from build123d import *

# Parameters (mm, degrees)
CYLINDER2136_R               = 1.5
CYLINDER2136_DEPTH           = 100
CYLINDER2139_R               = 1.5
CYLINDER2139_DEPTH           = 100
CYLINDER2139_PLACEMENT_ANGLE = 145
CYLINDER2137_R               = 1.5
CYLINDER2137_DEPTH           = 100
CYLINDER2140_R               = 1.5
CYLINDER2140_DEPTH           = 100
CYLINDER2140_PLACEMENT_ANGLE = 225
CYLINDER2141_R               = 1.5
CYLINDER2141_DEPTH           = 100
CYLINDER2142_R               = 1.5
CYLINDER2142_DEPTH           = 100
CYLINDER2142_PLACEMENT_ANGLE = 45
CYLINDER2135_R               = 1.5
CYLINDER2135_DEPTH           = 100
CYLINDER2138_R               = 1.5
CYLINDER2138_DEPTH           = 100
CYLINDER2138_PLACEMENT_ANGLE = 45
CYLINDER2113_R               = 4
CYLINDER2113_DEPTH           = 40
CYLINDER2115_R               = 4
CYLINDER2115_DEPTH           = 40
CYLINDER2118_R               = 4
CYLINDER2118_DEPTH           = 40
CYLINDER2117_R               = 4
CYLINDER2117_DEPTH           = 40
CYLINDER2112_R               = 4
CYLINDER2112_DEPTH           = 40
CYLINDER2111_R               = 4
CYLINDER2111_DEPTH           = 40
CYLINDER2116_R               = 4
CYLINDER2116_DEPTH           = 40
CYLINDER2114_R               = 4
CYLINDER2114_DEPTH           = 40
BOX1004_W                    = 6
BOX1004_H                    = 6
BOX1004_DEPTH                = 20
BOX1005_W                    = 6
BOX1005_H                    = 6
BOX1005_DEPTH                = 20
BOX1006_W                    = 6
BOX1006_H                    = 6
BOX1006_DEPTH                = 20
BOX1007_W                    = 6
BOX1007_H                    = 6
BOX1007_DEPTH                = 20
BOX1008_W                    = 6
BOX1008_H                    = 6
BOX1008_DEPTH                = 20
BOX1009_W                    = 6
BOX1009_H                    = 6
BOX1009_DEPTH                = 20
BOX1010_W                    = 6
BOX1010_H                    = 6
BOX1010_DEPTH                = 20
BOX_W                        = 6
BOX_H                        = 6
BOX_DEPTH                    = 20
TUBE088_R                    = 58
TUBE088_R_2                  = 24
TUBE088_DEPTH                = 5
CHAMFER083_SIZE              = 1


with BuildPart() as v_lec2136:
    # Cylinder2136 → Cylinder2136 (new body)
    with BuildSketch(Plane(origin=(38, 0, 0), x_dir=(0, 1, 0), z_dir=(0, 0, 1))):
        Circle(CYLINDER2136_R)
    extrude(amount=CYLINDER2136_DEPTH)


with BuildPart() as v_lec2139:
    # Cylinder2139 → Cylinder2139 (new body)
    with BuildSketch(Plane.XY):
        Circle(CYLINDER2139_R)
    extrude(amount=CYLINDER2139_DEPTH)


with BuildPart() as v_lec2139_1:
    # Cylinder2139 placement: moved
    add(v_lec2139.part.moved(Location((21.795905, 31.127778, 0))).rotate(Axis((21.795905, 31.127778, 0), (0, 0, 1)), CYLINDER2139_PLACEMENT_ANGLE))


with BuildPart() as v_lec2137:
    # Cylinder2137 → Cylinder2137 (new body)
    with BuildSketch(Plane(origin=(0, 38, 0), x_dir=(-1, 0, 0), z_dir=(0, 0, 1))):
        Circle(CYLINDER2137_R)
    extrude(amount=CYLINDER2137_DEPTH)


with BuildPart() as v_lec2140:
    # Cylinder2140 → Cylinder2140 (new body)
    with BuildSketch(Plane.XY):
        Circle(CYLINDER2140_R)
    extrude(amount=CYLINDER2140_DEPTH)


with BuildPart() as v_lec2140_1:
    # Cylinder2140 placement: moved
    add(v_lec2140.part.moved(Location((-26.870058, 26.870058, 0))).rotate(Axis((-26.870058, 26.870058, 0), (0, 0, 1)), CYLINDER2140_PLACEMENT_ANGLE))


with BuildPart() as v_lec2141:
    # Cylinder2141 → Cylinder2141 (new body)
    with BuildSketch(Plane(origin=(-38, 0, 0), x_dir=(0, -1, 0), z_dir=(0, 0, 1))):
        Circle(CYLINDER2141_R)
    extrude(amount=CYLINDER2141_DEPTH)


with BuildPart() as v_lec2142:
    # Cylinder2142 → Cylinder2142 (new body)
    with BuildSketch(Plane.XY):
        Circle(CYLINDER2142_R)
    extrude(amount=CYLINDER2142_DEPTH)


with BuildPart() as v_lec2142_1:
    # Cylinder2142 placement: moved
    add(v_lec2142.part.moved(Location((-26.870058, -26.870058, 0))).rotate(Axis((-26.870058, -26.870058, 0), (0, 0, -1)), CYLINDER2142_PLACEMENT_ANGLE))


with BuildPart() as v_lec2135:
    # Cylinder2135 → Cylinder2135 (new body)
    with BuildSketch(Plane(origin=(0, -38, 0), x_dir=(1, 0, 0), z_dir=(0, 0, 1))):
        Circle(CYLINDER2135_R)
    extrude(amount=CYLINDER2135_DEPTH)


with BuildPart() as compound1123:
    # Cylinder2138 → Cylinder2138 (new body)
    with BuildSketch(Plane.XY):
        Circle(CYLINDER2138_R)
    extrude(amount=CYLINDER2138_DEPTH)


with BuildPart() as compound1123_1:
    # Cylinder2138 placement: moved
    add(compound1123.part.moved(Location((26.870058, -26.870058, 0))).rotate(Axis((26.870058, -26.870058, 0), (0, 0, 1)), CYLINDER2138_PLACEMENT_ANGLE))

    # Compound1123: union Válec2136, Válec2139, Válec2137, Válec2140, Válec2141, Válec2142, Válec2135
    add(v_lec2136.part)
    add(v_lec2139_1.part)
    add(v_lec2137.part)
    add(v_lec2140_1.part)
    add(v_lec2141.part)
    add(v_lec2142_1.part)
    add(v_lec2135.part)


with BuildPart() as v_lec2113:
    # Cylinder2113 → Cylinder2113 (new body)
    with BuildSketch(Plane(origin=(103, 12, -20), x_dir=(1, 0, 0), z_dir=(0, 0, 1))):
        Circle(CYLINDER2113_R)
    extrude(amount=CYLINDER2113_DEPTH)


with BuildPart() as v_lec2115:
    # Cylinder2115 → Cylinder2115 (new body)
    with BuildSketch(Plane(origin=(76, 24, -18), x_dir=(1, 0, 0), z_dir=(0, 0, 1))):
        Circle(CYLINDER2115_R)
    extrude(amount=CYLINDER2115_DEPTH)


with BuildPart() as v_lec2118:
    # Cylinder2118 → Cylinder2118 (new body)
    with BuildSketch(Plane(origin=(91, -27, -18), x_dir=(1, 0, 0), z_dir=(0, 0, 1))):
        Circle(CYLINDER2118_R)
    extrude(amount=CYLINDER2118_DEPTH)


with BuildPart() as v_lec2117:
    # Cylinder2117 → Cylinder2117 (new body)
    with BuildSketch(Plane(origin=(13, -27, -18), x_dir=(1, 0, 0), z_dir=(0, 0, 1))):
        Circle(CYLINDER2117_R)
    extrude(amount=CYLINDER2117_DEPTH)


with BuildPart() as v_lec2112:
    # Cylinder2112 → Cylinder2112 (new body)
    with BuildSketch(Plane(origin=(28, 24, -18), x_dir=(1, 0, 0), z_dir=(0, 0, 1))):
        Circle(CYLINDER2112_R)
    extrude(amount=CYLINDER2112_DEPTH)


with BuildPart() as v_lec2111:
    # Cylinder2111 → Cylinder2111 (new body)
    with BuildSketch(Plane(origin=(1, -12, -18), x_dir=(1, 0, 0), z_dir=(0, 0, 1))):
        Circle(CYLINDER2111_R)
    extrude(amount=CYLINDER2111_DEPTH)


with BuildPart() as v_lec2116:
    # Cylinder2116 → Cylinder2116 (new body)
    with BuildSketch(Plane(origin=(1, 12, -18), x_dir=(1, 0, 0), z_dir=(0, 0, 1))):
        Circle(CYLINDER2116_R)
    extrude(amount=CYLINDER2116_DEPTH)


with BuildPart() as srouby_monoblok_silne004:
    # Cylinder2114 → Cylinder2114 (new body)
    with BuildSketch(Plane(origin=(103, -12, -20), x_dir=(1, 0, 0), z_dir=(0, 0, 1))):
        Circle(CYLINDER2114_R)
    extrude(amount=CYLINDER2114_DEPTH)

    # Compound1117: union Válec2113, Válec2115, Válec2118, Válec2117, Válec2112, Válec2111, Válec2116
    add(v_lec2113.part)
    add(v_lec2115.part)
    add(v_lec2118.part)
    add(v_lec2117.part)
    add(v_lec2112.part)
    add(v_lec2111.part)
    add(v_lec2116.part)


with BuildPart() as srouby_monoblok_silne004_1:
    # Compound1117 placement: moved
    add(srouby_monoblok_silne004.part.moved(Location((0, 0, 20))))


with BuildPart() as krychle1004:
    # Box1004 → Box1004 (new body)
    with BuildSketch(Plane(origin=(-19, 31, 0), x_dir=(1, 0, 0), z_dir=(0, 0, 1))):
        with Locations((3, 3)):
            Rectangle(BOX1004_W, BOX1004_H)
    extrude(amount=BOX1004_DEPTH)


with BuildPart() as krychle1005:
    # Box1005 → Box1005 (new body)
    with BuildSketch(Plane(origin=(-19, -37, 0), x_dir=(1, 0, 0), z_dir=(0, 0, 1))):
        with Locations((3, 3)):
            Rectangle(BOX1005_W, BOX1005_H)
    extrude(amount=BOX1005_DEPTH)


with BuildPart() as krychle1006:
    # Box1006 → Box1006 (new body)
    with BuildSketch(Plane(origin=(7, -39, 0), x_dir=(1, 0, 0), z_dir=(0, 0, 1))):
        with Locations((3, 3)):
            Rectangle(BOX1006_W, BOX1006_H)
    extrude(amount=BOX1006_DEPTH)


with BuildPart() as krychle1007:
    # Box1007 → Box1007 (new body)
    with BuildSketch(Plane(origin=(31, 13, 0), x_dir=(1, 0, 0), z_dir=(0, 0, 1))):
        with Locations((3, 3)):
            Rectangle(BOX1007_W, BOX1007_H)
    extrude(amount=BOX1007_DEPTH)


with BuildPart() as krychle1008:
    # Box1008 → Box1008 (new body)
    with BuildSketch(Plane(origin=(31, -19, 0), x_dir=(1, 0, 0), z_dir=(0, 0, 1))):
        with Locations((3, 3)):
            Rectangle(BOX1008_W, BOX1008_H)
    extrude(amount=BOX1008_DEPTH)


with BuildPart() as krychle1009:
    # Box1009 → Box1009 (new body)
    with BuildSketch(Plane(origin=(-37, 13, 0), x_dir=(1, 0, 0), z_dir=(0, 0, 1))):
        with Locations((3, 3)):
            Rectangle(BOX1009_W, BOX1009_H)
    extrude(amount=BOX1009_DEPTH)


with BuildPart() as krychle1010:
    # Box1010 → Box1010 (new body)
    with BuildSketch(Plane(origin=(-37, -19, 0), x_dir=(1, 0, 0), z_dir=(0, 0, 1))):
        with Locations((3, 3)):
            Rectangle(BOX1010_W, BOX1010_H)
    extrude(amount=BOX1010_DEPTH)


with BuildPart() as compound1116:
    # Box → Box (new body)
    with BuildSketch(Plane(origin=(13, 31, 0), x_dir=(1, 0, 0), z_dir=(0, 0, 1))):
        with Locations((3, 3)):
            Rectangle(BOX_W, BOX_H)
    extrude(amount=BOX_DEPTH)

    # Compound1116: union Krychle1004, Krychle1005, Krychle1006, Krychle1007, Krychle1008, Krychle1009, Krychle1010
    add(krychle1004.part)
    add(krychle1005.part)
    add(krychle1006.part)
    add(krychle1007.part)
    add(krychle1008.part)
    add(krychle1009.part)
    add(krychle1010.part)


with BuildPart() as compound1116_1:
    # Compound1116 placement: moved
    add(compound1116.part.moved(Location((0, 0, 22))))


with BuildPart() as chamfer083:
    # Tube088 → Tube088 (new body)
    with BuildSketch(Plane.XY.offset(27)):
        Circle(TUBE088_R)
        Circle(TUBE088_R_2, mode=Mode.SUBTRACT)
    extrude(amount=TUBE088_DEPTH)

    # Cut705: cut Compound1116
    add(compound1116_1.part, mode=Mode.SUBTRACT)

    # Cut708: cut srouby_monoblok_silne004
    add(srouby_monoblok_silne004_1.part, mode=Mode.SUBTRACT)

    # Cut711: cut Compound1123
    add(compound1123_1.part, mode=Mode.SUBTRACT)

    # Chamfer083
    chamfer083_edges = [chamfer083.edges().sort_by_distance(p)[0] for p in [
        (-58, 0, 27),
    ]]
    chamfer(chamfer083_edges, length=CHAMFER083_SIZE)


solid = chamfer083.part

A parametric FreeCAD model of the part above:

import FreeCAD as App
import Part
import Sketcher
Q = App.Units.Quantity


def edges_at(feature, points):
    """Names of the edges that pass closest to the given points."""
    edges = feature.Shape.Edges
    near = lambda p: min(range(len(edges)), key=lambda i: edges[i].distToShape(Part.Vertex(*p))[0])
    return sorted({f"Edge{near(p) + 1}" for p in points})

doc = App.newDocument("Part")
body = doc.addObject("PartDesign::Body", "Body")

# Sketch on XY plane
sketch1 = body.newObject("Sketcher::SketchObject", "Sketch")
sketch1.AttachmentSupport = (doc.getObject("XY_Plane"), [""])
sketch1.MapMode = "FlatFace"
sketch1.addGeometry(Part.Circle(App.Vector(38, 0, 0), App.Vector(0, 0, 1), 1.5), False)
sketch1.addConstraint([
    Sketcher.Constraint("PointOnObject", 0, 3, -1),
    Sketcher.Constraint("Diameter", 0, Q("3 mm")),
    Sketcher.Constraint("DistanceX", -1, 1, 0, 3, Q("38 mm")),
])
pad1 = body.newObject("PartDesign::Pad", "Pad")
pad1.Profile = sketch1
pad1.Length = 100
body2 = doc.addObject("PartDesign::Body", "Body001")

# Sketch on XY plane
sketch2 = body2.newObject("Sketcher::SketchObject", "Sketch001")
sketch2.AttachmentSupport = (doc.getObject("XY_Plane001"), [""])
sketch2.MapMode = "FlatFace"
sketch2.addGeometry(Part.Circle(App.Vector(0, 0, 0), App.Vector(0, 0, 1), 1.5), False)
sketch2.addConstraint([
    Sketcher.Constraint("Coincident", 0, 3, -1, 1),
    Sketcher.Constraint("Diameter", 0, Q("3 mm")),
])
pad2 = body2.newObject("PartDesign::Pad", "Pad001")
pad2.Profile = sketch2
pad2.Length = 100
body3 = doc.addObject("PartDesign::Body", "Body002")
doc.recompute()

body2.Placement = App.Placement(App.Vector(21.795905, 31.127778, 0), App.Rotation(App.Vector(0, 0, 1), 145))
boolean = body3.newObject("PartDesign::Boolean", "Boolean")
boolean.Type = "Fuse"
boolean.addObjects([body2])
body4 = doc.addObject("PartDesign::Body", "Body003")

# Sketch on XY plane
sketch3 = body4.newObject("Sketcher::SketchObject", "Sketch002")
sketch3.AttachmentSupport = (doc.getObject("XY_Plane003"), [""])
sketch3.MapMode = "FlatFace"
sketch3.addGeometry(Part.Circle(App.Vector(0, 38, 0), App.Vector(0, 0, 1), 1.5), False)
sketch3.addConstraint([
    Sketcher.Constraint("PointOnObject", 0, 3, -2),
    Sketcher.Constraint("Diameter", 0, Q("3 mm")),
    Sketcher.Constraint("DistanceY", -1, 1, 0, 3, Q("38 mm")),
])
pad3 = body4.newObject("PartDesign::Pad", "Pad002")
pad3.Profile = sketch3
pad3.Length = 100
body5 = doc.addObject("PartDesign::Body", "Body004")

# Sketch on XY plane
sketch4 = body5.newObject("Sketcher::SketchObject", "Sketch003")
sketch4.AttachmentSupport = (doc.getObject("XY_Plane004"), [""])
sketch4.MapMode = "FlatFace"
sketch4.addGeometry(Part.Circle(App.Vector(0, 0, 0), App.Vector(0, 0, 1), 1.5), False)
sketch4.addConstraint([
    Sketcher.Constraint("Coincident", 0, 3, -1, 1),
    Sketcher.Constraint("Diameter", 0, Q("3 mm")),
])
pad4 = body5.newObject("PartDesign::Pad", "Pad003")
pad4.Profile = sketch4
pad4.Length = 100
body6 = doc.addObject("PartDesign::Body", "Body005")
doc.recompute()

body5.Placement = App.Placement(App.Vector(-26.870058, 26.870058, 0), App.Rotation(App.Vector(0, 0, 1), 225))
boolean2 = body6.newObject("PartDesign::Boolean", "Boolean001")
boolean2.Type = "Fuse"
boolean2.addObjects([body5])
body7 = doc.addObject("PartDesign::Body", "Body006")

# Sketch on XY plane
sketch5 = body7.newObject("Sketcher::SketchObject", "Sketch004")
sketch5.AttachmentSupport = (doc.getObject("XY_Plane006"), [""])
sketch5.MapMode = "FlatFace"
sketch5.addGeometry(Part.Circle(App.Vector(-38, 0, 0), App.Vector(0, 0, 1), 1.5), False)
sketch5.addConstraint([
    Sketcher.Constraint("PointOnObject", 0, 3, -1),
    Sketcher.Constraint("Diameter", 0, Q("3 mm")),
    Sketcher.Constraint("DistanceX", 0, 3, -1, 1, Q("38 mm")),
])
pad5 = body7.newObject("PartDesign::Pad", "Pad004")
pad5.Profile = sketch5
pad5.Length = 100
body8 = doc.addObject("PartDesign::Body", "Body007")

# Sketch on XY plane
sketch6 = body8.newObject("Sketcher::SketchObject", "Sketch005")
sketch6.AttachmentSupport = (doc.getObject("XY_Plane007"), [""])
sketch6.MapMode = "FlatFace"
sketch6.addGeometry(Part.Circle(App.Vector(0, 0, 0), App.Vector(0, 0, 1), 1.5), False)
sketch6.addConstraint([
    Sketcher.Constraint("Coincident", 0, 3, -1, 1),
    Sketcher.Constraint("Diameter", 0, Q("3 mm")),
])
pad6 = body8.newObject("PartDesign::Pad", "Pad005")
pad6.Profile = sketch6
pad6.Length = 100
body9 = doc.addObject("PartDesign::Body", "Body008")
doc.recompute()

body8.Placement = App.Placement(App.Vector(-26.870058, -26.870058, 0), App.Rotation(App.Vector(0, 0, -1), 45))
boolean3 = body9.newObject("PartDesign::Boolean", "Boolean002")
boolean3.Type = "Fuse"
boolean3.addObjects([body8])
body10 = doc.addObject("PartDesign::Body", "Body009")

# Sketch on XY plane
sketch7 = body10.newObject("Sketcher::SketchObject", "Sketch006")
sketch7.AttachmentSupport = (doc.getObject("XY_Plane009"), [""])
sketch7.MapMode = "FlatFace"
sketch7.addGeometry(Part.Circle(App.Vector(0, -38, 0), App.Vector(0, 0, 1), 1.5), False)
sketch7.addConstraint([
    Sketcher.Constraint("PointOnObject", 0, 3, -2),
    Sketcher.Constraint("Diameter", 0, Q("3 mm")),
    Sketcher.Constraint("DistanceY", 0, 3, -1, 1, Q("38 mm")),
])
pad7 = body10.newObject("PartDesign::Pad", "Pad006")
pad7.Profile = sketch7
pad7.Length = 100
body11 = doc.addObject("PartDesign::Body", "Body010")

# Sketch on XY plane
sketch8 = body11.newObject("Sketcher::SketchObject", "Sketch007")
sketch8.AttachmentSupport = (doc.getObject("XY_Plane010"), [""])
sketch8.MapMode = "FlatFace"
sketch8.addGeometry(Part.Circle(App.Vector(0, 0, 0), App.Vector(0, 0, 1), 1.5), False)
sketch8.addConstraint([
    Sketcher.Constraint("Coincident", 0, 3, -1, 1),
    Sketcher.Constraint("Diameter", 0, Q("3 mm")),
])
pad8 = body11.newObject("PartDesign::Pad", "Pad007")
pad8.Profile = sketch8
pad8.Length = 100
body12 = doc.addObject("PartDesign::Body", "Body011")
body12.AllowCompound = True
doc.recompute()

body11.Placement = App.Placement(App.Vector(26.870058, -26.870058, 0), App.Rotation(App.Vector(0, 0, 1), 45))
boolean4 = body12.newObject("PartDesign::Boolean", "Boolean003")
boolean4.Type = "Fuse"
boolean4.addObjects([body11])
doc.recompute()

boolean5 = body12.newObject("PartDesign::Boolean", "Boolean004")
boolean5.Type = "Fuse"
boolean5.addObjects([body])
doc.recompute()

boolean6 = body12.newObject("PartDesign::Boolean", "Boolean005")
boolean6.Type = "Fuse"
boolean6.addObjects([body3])
doc.recompute()

boolean7 = body12.newObject("PartDesign::Boolean", "Boolean006")
boolean7.Type = "Fuse"
boolean7.addObjects([body4])
doc.recompute()

boolean8 = body12.newObject("PartDesign::Boolean", "Boolean007")
boolean8.Type = "Fuse"
boolean8.addObjects([body6])
doc.recompute()

boolean9 = body12.newObject("PartDesign::Boolean", "Boolean008")
boolean9.Type = "Fuse"
boolean9.addObjects([body7])
doc.recompute()

boolean10 = body12.newObject("PartDesign::Boolean", "Boolean009")
boolean10.Type = "Fuse"
boolean10.addObjects([body9])
doc.recompute()

boolean11 = body12.newObject("PartDesign::Boolean", "Boolean010")
boolean11.Type = "Fuse"
boolean11.addObjects([body10])
body13 = doc.addObject("PartDesign::Body", "Body012")

# Sketch on XY plane
sketch9 = body13.newObject("Sketcher::SketchObject", "Sketch008")
sketch9.AttachmentSupport = (doc.getObject("XY_Plane012"), [""])
sketch9.MapMode = "FlatFace"
sketch9.AttachmentOffset = App.Placement(App.Vector(0, 0, -20), App.Rotation())
sketch9.addGeometry(Part.Circle(App.Vector(103, 12, 0), App.Vector(0, 0, 1), 4), False)
sketch9.addConstraint([
    Sketcher.Constraint("Diameter", 0, Q("8 mm")),
    Sketcher.Constraint("DistanceX", -1, 1, 0, 3, Q("103 mm")),
    Sketcher.Constraint("DistanceY", -1, 1, 0, 3, Q("12 mm")),
])
pad9 = body13.newObject("PartDesign::Pad", "Pad008")
pad9.Profile = sketch9
pad9.Length = 40
body14 = doc.addObject("PartDesign::Body", "Body013")

# Sketch on XY plane
sketch10 = body14.newObject("Sketcher::SketchObject", "Sketch009")
sketch10.AttachmentSupport = (doc.getObject("XY_Plane013"), [""])
sketch10.MapMode = "FlatFace"
sketch10.AttachmentOffset = App.Placement(App.Vector(0, 0, -18), App.Rotation())
sketch10.addGeometry(Part.Circle(App.Vector(76, 24, 0), App.Vector(0, 0, 1), 4), False)
sketch10.addConstraint([
    Sketcher.Constraint("Diameter", 0, Q("8 mm")),
    Sketcher.Constraint("DistanceX", -1, 1, 0, 3, Q("76 mm")),
    Sketcher.Constraint("DistanceY", -1, 1, 0, 3, Q("24 mm")),
])
pad10 = body14.newObject("PartDesign::Pad", "Pad009")
pad10.Profile = sketch10
pad10.Length = 40
body15 = doc.addObject("PartDesign::Body", "Body014")

# Sketch on XY plane
sketch11 = body15.newObject("Sketcher::SketchObject", "Sketch010")
sketch11.AttachmentSupport = (doc.getObject("XY_Plane014"), [""])
sketch11.MapMode = "FlatFace"
sketch11.AttachmentOffset = App.Placement(App.Vector(0, 0, -18), App.Rotation())
sketch11.addGeometry(Part.Circle(App.Vector(91, -27, 0), App.Vector(0, 0, 1), 4), False)
sketch11.addConstraint([
    Sketcher.Constraint("Diameter", 0, Q("8 mm")),
    Sketcher.Constraint("DistanceX", -1, 1, 0, 3, Q("91 mm")),
    Sketcher.Constraint("DistanceY", 0, 3, -1, 1, Q("27 mm")),
])
pad11 = body15.newObject("PartDesign::Pad", "Pad010")
pad11.Profile = sketch11
pad11.Length = 40
body16 = doc.addObject("PartDesign::Body", "Body015")

# Sketch on XY plane
sketch12 = body16.newObject("Sketcher::SketchObject", "Sketch011")
sketch12.AttachmentSupport = (doc.getObject("XY_Plane015"), [""])
sketch12.MapMode = "FlatFace"
sketch12.AttachmentOffset = App.Placement(App.Vector(0, 0, -18), App.Rotation())
sketch12.addGeometry(Part.Circle(App.Vector(13, -27, 0), App.Vector(0, 0, 1), 4), False)
sketch12.addConstraint([
    Sketcher.Constraint("Diameter", 0, Q("8 mm")),
    Sketcher.Constraint("DistanceX", -1, 1, 0, 3, Q("13 mm")),
    Sketcher.Constraint("DistanceY", 0, 3, -1, 1, Q("27 mm")),
])
pad12 = body16.newObject("PartDesign::Pad", "Pad011")
pad12.Profile = sketch12
pad12.Length = 40
body17 = doc.addObject("PartDesign::Body", "Body016")

# Sketch on XY plane
sketch13 = body17.newObject("Sketcher::SketchObject", "Sketch012")
sketch13.AttachmentSupport = (doc.getObject("XY_Plane016"), [""])
sketch13.MapMode = "FlatFace"
sketch13.AttachmentOffset = App.Placement(App.Vector(0, 0, -18), App.Rotation())
sketch13.addGeometry(Part.Circle(App.Vector(28, 24, 0), App.Vector(0, 0, 1), 4), False)
sketch13.addConstraint([
    Sketcher.Constraint("Diameter", 0, Q("8 mm")),
    Sketcher.Constraint("DistanceX", -1, 1, 0, 3, Q("28 mm")),
    Sketcher.Constraint("DistanceY", -1, 1, 0, 3, Q("24 mm")),
])
pad13 = body17.newObject("PartDesign::Pad", "Pad012")
pad13.Profile = sketch13
pad13.Length = 40
body18 = doc.addObject("PartDesign::Body", "Body017")

# Sketch on XY plane
sketch14 = body18.newObject("Sketcher::SketchObject", "Sketch013")
sketch14.AttachmentSupport = (doc.getObject("XY_Plane017"), [""])
sketch14.MapMode = "FlatFace"
sketch14.AttachmentOffset = App.Placement(App.Vector(0, 0, -18), App.Rotation())
sketch14.addGeometry(Part.Circle(App.Vector(1, -12, 0), App.Vector(0, 0, 1), 4), False)
sketch14.addConstraint([
    Sketcher.Constraint("Diameter", 0, Q("8 mm")),
    Sketcher.Constraint("DistanceX", -1, 1, 0, 3, Q("1 mm")),
    Sketcher.Constraint("DistanceY", 0, 3, -1, 1, Q("12 mm")),
])
pad14 = body18.newObject("PartDesign::Pad", "Pad013")
pad14.Profile = sketch14
pad14.Length = 40
body19 = doc.addObject("PartDesign::Body", "Body018")

# Sketch on XY plane
sketch15 = body19.newObject("Sketcher::SketchObject", "Sketch014")
sketch15.AttachmentSupport = (doc.getObject("XY_Plane018"), [""])
sketch15.MapMode = "FlatFace"
sketch15.AttachmentOffset = App.Placement(App.Vector(0, 0, -18), App.Rotation())
sketch15.addGeometry(Part.Circle(App.Vector(1, 12, 0), App.Vector(0, 0, 1), 4), False)
sketch15.addConstraint([
    Sketcher.Constraint("Diameter", 0, Q("8 mm")),
    Sketcher.Constraint("DistanceX", -1, 1, 0, 3, Q("1 mm")),
    Sketcher.Constraint("DistanceY", -1, 1, 0, 3, Q("12 mm")),
])
pad15 = body19.newObject("PartDesign::Pad", "Pad014")
pad15.Profile = sketch15
pad15.Length = 40
body20 = doc.addObject("PartDesign::Body", "Body019")
body20.AllowCompound = True

# Sketch on XY plane
sketch16 = body20.newObject("Sketcher::SketchObject", "Sketch015")
sketch16.AttachmentSupport = (doc.getObject("XY_Plane019"), [""])
sketch16.MapMode = "FlatFace"
sketch16.AttachmentOffset = App.Placement(App.Vector(0, 0, -20), App.Rotation())
sketch16.addGeometry(Part.Circle(App.Vector(103, -12, 0), App.Vector(0, 0, 1), 4), False)
sketch16.addConstraint([
    Sketcher.Constraint("Diameter", 0, Q("8 mm")),
    Sketcher.Constraint("DistanceX", -1, 1, 0, 3, Q("103 mm")),
    Sketcher.Constraint("DistanceY", 0, 3, -1, 1, Q("12 mm")),
])
pad16 = body20.newObject("PartDesign::Pad", "Pad015")
pad16.Profile = sketch16
pad16.Length = 40
doc.recompute()

boolean12 = body20.newObject("PartDesign::Boolean", "Boolean011")
boolean12.Type = "Fuse"
boolean12.addObjects([body13])
doc.recompute()

boolean13 = body20.newObject("PartDesign::Boolean", "Boolean012")
boolean13.Type = "Fuse"
boolean13.addObjects([body14])
doc.recompute()

boolean14 = body20.newObject("PartDesign::Boolean", "Boolean013")
boolean14.Type = "Fuse"
boolean14.addObjects([body15])
doc.recompute()

boolean15 = body20.newObject("PartDesign::Boolean", "Boolean014")
boolean15.Type = "Fuse"
boolean15.addObjects([body16])
doc.recompute()

boolean16 = body20.newObject("PartDesign::Boolean", "Boolean015")
boolean16.Type = "Fuse"
boolean16.addObjects([body17])
doc.recompute()

boolean17 = body20.newObject("PartDesign::Boolean", "Boolean016")
boolean17.Type = "Fuse"
boolean17.addObjects([body18])
doc.recompute()

boolean18 = body20.newObject("PartDesign::Boolean", "Boolean017")
boolean18.Type = "Fuse"
boolean18.addObjects([body19])
body21 = doc.addObject("PartDesign::Body", "Body020")
body21.AllowCompound = True
doc.recompute()

body20.Placement = App.Placement(App.Vector(0, 0, 20), App.Rotation(App.Vector(0, 0, 1), 0))
boolean19 = body21.newObject("PartDesign::Boolean", "Boolean018")
boolean19.Type = "Fuse"
boolean19.addObjects([body20])
body22 = doc.addObject("PartDesign::Body", "Body021")

# Sketch on XY plane
sketch17 = body22.newObject("Sketcher::SketchObject", "Sketch016")
sketch17.AttachmentSupport = (doc.getObject("XY_Plane021"), [""])
sketch17.MapMode = "FlatFace"
sketch17.addGeometry([
    Part.LineSegment(App.Vector(-19, 37, 0), App.Vector(-19, 31, 0)),
    Part.LineSegment(App.Vector(-19, 31, 0), App.Vector(-13, 31, 0)),
    Part.LineSegment(App.Vector(-13, 31, 0), App.Vector(-13, 37, 0)),
    Part.LineSegment(App.Vector(-13, 37, 0), App.Vector(-19, 37, 0)),
], False)
sketch17.addConstraint([
    Sketcher.Constraint("Coincident", 0, 2, 1, 1),
    Sketcher.Constraint("Coincident", 1, 2, 2, 1),
    Sketcher.Constraint("Coincident", 2, 2, 3, 1),
    Sketcher.Constraint("Coincident", 3, 2, 0, 1),
    Sketcher.Constraint("Vertical", 0),
    Sketcher.Constraint("Horizontal", 1),
    Sketcher.Constraint("Vertical", 2),
    Sketcher.Constraint("Horizontal", 3),
    Sketcher.Constraint("Equal", 3, 0),
    Sketcher.Constraint("DistanceX", 1, 1, 1, 2, Q("6 mm")),
    Sketcher.Constraint("DistanceX", 0, 2, -1, 1, Q("19 mm")),
    Sketcher.Constraint("DistanceY", -1, 1, 0, 2, Q("31 mm")),
])
pad17 = body22.newObject("PartDesign::Pad", "Pad016")
pad17.Profile = sketch17
pad17.Length = 20
body23 = doc.addObject("PartDesign::Body", "Body022")

# Sketch on XY plane
sketch18 = body23.newObject("Sketcher::SketchObject", "Sketch017")
sketch18.AttachmentSupport = (doc.getObject("XY_Plane022"), [""])
sketch18.MapMode = "FlatFace"
sketch18.addGeometry([
    Part.LineSegment(App.Vector(-19, -31, 0), App.Vector(-19, -37, 0)),
    Part.LineSegment(App.Vector(-19, -37, 0), App.Vector(-13, -37, 0)),
    Part.LineSegment(App.Vector(-13, -37, 0), App.Vector(-13, -31, 0)),
    Part.LineSegment(App.Vector(-13, -31, 0), App.Vector(-19, -31, 0)),
], False)
sketch18.addConstraint([
    Sketcher.Constraint("Coincident", 0, 2, 1, 1),
    Sketcher.Constraint("Coincident", 1, 2, 2, 1),
    Sketcher.Constraint("Coincident", 2, 2, 3, 1),
    Sketcher.Constraint("Coincident", 3, 2, 0, 1),
    Sketcher.Constraint("Vertical", 0),
    Sketcher.Constraint("Horizontal", 1),
    Sketcher.Constraint("Vertical", 2),
    Sketcher.Constraint("Horizontal", 3),
    Sketcher.Constraint("Equal", 3, 0),
    Sketcher.Constraint("DistanceX", 1, 1, 1, 2, Q("6 mm")),
    Sketcher.Constraint("DistanceX", 0, 2, -1, 1, Q("19 mm")),
    Sketcher.Constraint("DistanceY", 0, 2, -1, 1, Q("37 mm")),
])
pad18 = body23.newObject("PartDesign::Pad", "Pad017")
pad18.Profile = sketch18
pad18.Length = 20
body24 = doc.addObject("PartDesign::Body", "Body023")

# Sketch on XY plane
sketch19 = body24.newObject("Sketcher::SketchObject", "Sketch018")
sketch19.AttachmentSupport = (doc.getObject("XY_Plane023"), [""])
sketch19.MapMode = "FlatFace"
sketch19.addGeometry([
    Part.LineSegment(App.Vector(7, -33, 0), App.Vector(7, -39, 0)),
    Part.LineSegment(App.Vector(7, -39, 0), App.Vector(13, -39, 0)),
    Part.LineSegment(App.Vector(13, -39, 0), App.Vector(13, -33, 0)),
    Part.LineSegment(App.Vector(13, -33, 0), App.Vector(7, -33, 0)),
], False)
sketch19.addConstraint([
    Sketcher.Constraint("Coincident", 0, 2, 1, 1),
    Sketcher.Constraint("Coincident", 1, 2, 2, 1),
    Sketcher.Constraint("Coincident", 2, 2, 3, 1),
    Sketcher.Constraint("Coincident", 3, 2, 0, 1),
    Sketcher.Constraint("Vertical", 0),
    Sketcher.Constraint("Horizontal", 1),
    Sketcher.Constraint("Vertical", 2),
    Sketcher.Constraint("Horizontal", 3),
    Sketcher.Constraint("Equal", 3, 0),
    Sketcher.Constraint("DistanceX", 1, 1, 1, 2, Q("6 mm")),
    Sketcher.Constraint("DistanceX", -1, 1, 0, 2, Q("7 mm")),
    Sketcher.Constraint("DistanceY", 0, 2, -1, 1, Q("39 mm")),
])
pad19 = body24.newObject("PartDesign::Pad", "Pad018")
pad19.Profile = sketch19
pad19.Length = 20
body25 = doc.addObject("PartDesign::Body", "Body024")

# Sketch on XY plane
sketch20 = body25.newObject("Sketcher::SketchObject", "Sketch019")
sketch20.AttachmentSupport = (doc.getObject("XY_Plane024"), [""])
sketch20.MapMode = "FlatFace"
sketch20.addGeometry([
    Part.LineSegment(App.Vector(31, 19, 0), App.Vector(31, 13, 0)),
    Part.LineSegment(App.Vector(31, 13, 0), App.Vector(37, 13, 0)),
    Part.LineSegment(App.Vector(37, 13, 0), App.Vector(37, 19, 0)),
    Part.LineSegment(App.Vector(37, 19, 0), App.Vector(31, 19, 0)),
], False)
sketch20.addConstraint([
    Sketcher.Constraint("Coincident", 0, 2, 1, 1),
    Sketcher.Constraint("Coincident", 1, 2, 2, 1),
    Sketcher.Constraint("Coincident", 2, 2, 3, 1),
    Sketcher.Constraint("Coincident", 3, 2, 0, 1),
    Sketcher.Constraint("Vertical", 0),
    Sketcher.Constraint("Horizontal", 1),
    Sketcher.Constraint("Vertical", 2),
    Sketcher.Constraint("Horizontal", 3),
    Sketcher.Constraint("Equal", 3, 0),
    Sketcher.Constraint("DistanceX", 1, 1, 1, 2, Q("6 mm")),
    Sketcher.Constraint("DistanceX", -1, 1, 0, 2, Q("31 mm")),
    Sketcher.Constraint("DistanceY", -1, 1, 0, 2, Q("13 mm")),
])
pad20 = body25.newObject("PartDesign::Pad", "Pad019")
pad20.Profile = sketch20
pad20.Length = 20
body26 = doc.addObject("PartDesign::Body", "Body025")

# Sketch on XY plane
sketch21 = body26.newObject("Sketcher::SketchObject", "Sketch020")
sketch21.AttachmentSupport = (doc.getObject("XY_Plane025"), [""])
sketch21.MapMode = "FlatFace"
sketch21.addGeometry([
    Part.LineSegment(App.Vector(31, -13, 0), App.Vector(31, -19, 0)),
    Part.LineSegment(App.Vector(31, -19, 0), App.Vector(37, -19, 0)),
    Part.LineSegment(App.Vector(37, -19, 0), App.Vector(37, -13, 0)),
    Part.LineSegment(App.Vector(37, -13, 0), App.Vector(31, -13, 0)),
], False)
sketch21.addConstraint([
    Sketcher.Constraint("Coincident", 0, 2, 1, 1),
    Sketcher.Constraint("Coincident", 1, 2, 2, 1),
    Sketcher.Constraint("Coincident", 2, 2, 3, 1),
    Sketcher.Constraint("Coincident", 3, 2, 0, 1),
    Sketcher.Constraint("Vertical", 0),
    Sketcher.Constraint("Horizontal", 1),
    Sketcher.Constraint("Vertical", 2),
    Sketcher.Constraint("Horizontal", 3),
    Sketcher.Constraint("Equal", 3, 0),
    Sketcher.Constraint("DistanceX", 1, 1, 1, 2, Q("6 mm")),
    Sketcher.Constraint("DistanceX", -1, 1, 0, 2, Q("31 mm")),
    Sketcher.Constraint("DistanceY", 0, 2, -1, 1, Q("19 mm")),
])
pad21 = body26.newObject("PartDesign::Pad", "Pad020")
pad21.Profile = sketch21
pad21.Length = 20
body27 = doc.addObject("PartDesign::Body", "Body026")

# Sketch on XY plane
sketch22 = body27.newObject("Sketcher::SketchObject", "Sketch021")
sketch22.AttachmentSupport = (doc.getObject("XY_Plane026"), [""])
sketch22.MapMode = "FlatFace"
sketch22.addGeometry([
    Part.LineSegment(App.Vector(-37, 19, 0), App.Vector(-37, 13, 0)),
    Part.LineSegment(App.Vector(-37, 13, 0), App.Vector(-31, 13, 0)),
    Part.LineSegment(App.Vector(-31, 13, 0), App.Vector(-31, 19, 0)),
    Part.LineSegment(App.Vector(-31, 19, 0), App.Vector(-37, 19, 0)),
], False)
sketch22.addConstraint([
    Sketcher.Constraint("Coincident", 0, 2, 1, 1),
    Sketcher.Constraint("Coincident", 1, 2, 2, 1),
    Sketcher.Constraint("Coincident", 2, 2, 3, 1),
    Sketcher.Constraint("Coincident", 3, 2, 0, 1),
    Sketcher.Constraint("Vertical", 0),
    Sketcher.Constraint("Horizontal", 1),
    Sketcher.Constraint("Vertical", 2),
    Sketcher.Constraint("Horizontal", 3),
    Sketcher.Constraint("Equal", 3, 0),
    Sketcher.Constraint("DistanceX", 1, 1, 1, 2, Q("6 mm")),
    Sketcher.Constraint("DistanceX", 0, 2, -1, 1, Q("37 mm")),
    Sketcher.Constraint("DistanceY", -1, 1, 0, 2, Q("13 mm")),
])
pad22 = body27.newObject("PartDesign::Pad", "Pad021")
pad22.Profile = sketch22
pad22.Length = 20
body28 = doc.addObject("PartDesign::Body", "Body027")

# Sketch on XY plane
sketch23 = body28.newObject("Sketcher::SketchObject", "Sketch022")
sketch23.AttachmentSupport = (doc.getObject("XY_Plane027"), [""])
sketch23.MapMode = "FlatFace"
sketch23.addGeometry([
    Part.LineSegment(App.Vector(-37, -13, 0), App.Vector(-37, -19, 0)),
    Part.LineSegment(App.Vector(-37, -19, 0), App.Vector(-31, -19, 0)),
    Part.LineSegment(App.Vector(-31, -19, 0), App.Vector(-31, -13, 0)),
    Part.LineSegment(App.Vector(-31, -13, 0), App.Vector(-37, -13, 0)),
], False)
sketch23.addConstraint([
    Sketcher.Constraint("Coincident", 0, 2, 1, 1),
    Sketcher.Constraint("Coincident", 1, 2, 2, 1),
    Sketcher.Constraint("Coincident", 2, 2, 3, 1),
    Sketcher.Constraint("Coincident", 3, 2, 0, 1),
    Sketcher.Constraint("Vertical", 0),
    Sketcher.Constraint("Horizontal", 1),
    Sketcher.Constraint("Vertical", 2),
    Sketcher.Constraint("Horizontal", 3),
    Sketcher.Constraint("Equal", 3, 0),
    Sketcher.Constraint("DistanceX", 1, 1, 1, 2, Q("6 mm")),
    Sketcher.Constraint("DistanceX", 0, 2, -1, 1, Q("37 mm")),
    Sketcher.Constraint("DistanceY", 0, 2, -1, 1, Q("19 mm")),
])
pad23 = body28.newObject("PartDesign::Pad", "Pad022")
pad23.Profile = sketch23
pad23.Length = 20
body29 = doc.addObject("PartDesign::Body", "Body028")
body29.AllowCompound = True

# Sketch on XY plane
sketch24 = body29.newObject("Sketcher::SketchObject", "Sketch023")
sketch24.AttachmentSupport = (doc.getObject("XY_Plane028"), [""])
sketch24.MapMode = "FlatFace"
sketch24.addGeometry([
    Part.LineSegment(App.Vector(13, 37, 0), App.Vector(13, 31, 0)),
    Part.LineSegment(App.Vector(13, 31, 0), App.Vector(19, 31, 0)),
    Part.LineSegment(App.Vector(19, 31, 0), App.Vector(19, 37, 0)),
    Part.LineSegment(App.Vector(19, 37, 0), App.Vector(13, 37, 0)),
], False)
sketch24.addConstraint([
    Sketcher.Constraint("Coincident", 0, 2, 1, 1),
    Sketcher.Constraint("Coincident", 1, 2, 2, 1),
    Sketcher.Constraint("Coincident", 2, 2, 3, 1),
    Sketcher.Constraint("Coincident", 3, 2, 0, 1),
    Sketcher.Constraint("Vertical", 0),
    Sketcher.Constraint("Horizontal", 1),
    Sketcher.Constraint("Vertical", 2),
    Sketcher.Constraint("Horizontal", 3),
    Sketcher.Constraint("Equal", 3, 0),
    Sketcher.Constraint("DistanceX", 1, 1, 1, 2, Q("6 mm")),
    Sketcher.Constraint("DistanceX", -1, 1, 0, 2, Q("13 mm")),
    Sketcher.Constraint("DistanceY", -1, 1, 0, 2, Q("31 mm")),
])
pad24 = body29.newObject("PartDesign::Pad", "Pad023")
pad24.Profile = sketch24
pad24.Length = 20
doc.recompute()

boolean20 = body29.newObject("PartDesign::Boolean", "Boolean019")
boolean20.Type = "Fuse"
boolean20.addObjects([body22])
doc.recompute()

boolean21 = body29.newObject("PartDesign::Boolean", "Boolean020")
boolean21.Type = "Fuse"
boolean21.addObjects([body23])
doc.recompute()

boolean22 = body29.newObject("PartDesign::Boolean", "Boolean021")
boolean22.Type = "Fuse"
boolean22.addObjects([body24])
doc.recompute()

boolean23 = body29.newObject("PartDesign::Boolean", "Boolean022")
boolean23.Type = "Fuse"
boolean23.addObjects([body25])
doc.recompute()

boolean24 = body29.newObject("PartDesign::Boolean", "Boolean023")
boolean24.Type = "Fuse"
boolean24.addObjects([body26])
doc.recompute()

boolean25 = body29.newObject("PartDesign::Boolean", "Boolean024")
boolean25.Type = "Fuse"
boolean25.addObjects([body27])
doc.recompute()

boolean26 = body29.newObject("PartDesign::Boolean", "Boolean025")
boolean26.Type = "Fuse"
boolean26.addObjects([body28])
body30 = doc.addObject("PartDesign::Body", "Body029")
body30.AllowCompound = True
doc.recompute()

body29.Placement = App.Placement(App.Vector(0, 0, 22), App.Rotation(App.Vector(0, 0, 1), 0))
boolean27 = body30.newObject("PartDesign::Boolean", "Boolean026")
boolean27.Type = "Fuse"
boolean27.addObjects([body29])
body31 = doc.addObject("PartDesign::Body", "Body030")

# Sketch on XY plane
sketch25 = body31.newObject("Sketcher::SketchObject", "Sketch024")
sketch25.AttachmentSupport = (doc.getObject("XY_Plane030"), [""])
sketch25.MapMode = "FlatFace"
sketch25.AttachmentOffset = App.Placement(App.Vector(0, 0, 27), App.Rotation())
sketch25.addGeometry([
    Part.Circle(App.Vector(0, 0, 0), App.Vector(0, 0, 1), 58),
    Part.Circle(App.Vector(0, 0, 0), App.Vector(0, 0, 1), 24),
], False)
sketch25.addConstraint([
    Sketcher.Constraint("Coincident", 0, 3, -1, 1),
    Sketcher.Constraint("Coincident", 1, 3, -1, 1),
    Sketcher.Constraint("Diameter", 0, Q("116 mm")),
    Sketcher.Constraint("Diameter", 1, Q("48 mm")),
])
pad25 = body31.newObject("PartDesign::Pad", "Pad024")
pad25.Profile = sketch25
pad25.Length = 5
doc.recompute()

boolean28 = body31.newObject("PartDesign::Boolean", "Boolean027")
boolean28.Type = "Cut"
boolean28.addObjects([body30])
doc.recompute()

boolean29 = body31.newObject("PartDesign::Boolean", "Boolean028")
boolean29.Type = "Cut"
boolean29.addObjects([body21])
doc.recompute()

boolean30 = body31.newObject("PartDesign::Boolean", "Boolean029")
boolean30.Type = "Cut"
boolean30.addObjects([body12])
doc.recompute()

chamfer = body31.newObject("PartDesign::Chamfer", "Chamfer")
chamfer.Base = (boolean30, edges_at(boolean30, [(-58, 0, 27)]))
chamfer.Size = 1

doc.recompute()
